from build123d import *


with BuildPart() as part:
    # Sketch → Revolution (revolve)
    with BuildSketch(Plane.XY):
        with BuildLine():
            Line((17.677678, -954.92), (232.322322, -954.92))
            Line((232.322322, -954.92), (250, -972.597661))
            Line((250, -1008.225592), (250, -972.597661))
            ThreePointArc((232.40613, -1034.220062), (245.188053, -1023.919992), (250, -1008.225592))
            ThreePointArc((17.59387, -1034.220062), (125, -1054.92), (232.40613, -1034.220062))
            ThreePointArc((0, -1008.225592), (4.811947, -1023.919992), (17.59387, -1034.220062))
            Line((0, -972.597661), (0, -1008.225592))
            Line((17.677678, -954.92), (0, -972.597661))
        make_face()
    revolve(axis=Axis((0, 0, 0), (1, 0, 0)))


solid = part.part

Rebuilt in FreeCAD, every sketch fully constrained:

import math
import FreeCAD as App
import Part
import Sketcher
from FreeCAD import Vector
Q = App.Units.Quantity

doc = App.newDocument("Part")
params = doc.addObject("Spreadsheet::Sheet", "Params")
for row, (alias, value) in enumerate([
    ("sketch1_radius", "28.000001 mm"),
    ("sketch1_radius2", "289.000001 mm"),
    ("sketch1_length", "25 mm"),
    ("revolution_angle", "360 deg"),
], start=1):
    params.set(f"A{row}", alias)
    params.set(f"B{row}", "=" + value)
    params.setAlias(f"B{row}", alias)

body = doc.addObject("PartDesign::Body", "Body")

sketch1 = body.newObject("Sketcher::SketchObject", "Sketch")
sketch1.AttachmentSupport = (doc.getObject("XY_Plane"), [""])
sketch1.MapMode = "FlatFace"
sketch1.addGeometry([
    Part.LineSegment(Vector(232, -955, 0), Vector(18, -955, 0)),
    Part.LineSegment(Vector(18, -955, 0), Vector(0, -973, 0)),
    Part.LineSegment(Vector(0, -973, 0), Vector(0, -1008, 0)),
    Part.ArcOfCircle(Part.Circle(Vector(28, -1008, 0), Vector(0, 0, 1), 28), math.radians(-180), math.radians(-112)),
    Part.ArcOfCircle(Part.Circle(Vector(125, -766, 0), Vector(0, 0, 1), 289), math.radians(-112), math.radians(-68)),
    Part.ArcOfCircle(Part.Circle(Vector(222, -1008, 0), Vector(0, 0, 1), 28), math.radians(-68), math.radians(0)),
    Part.LineSegment(Vector(250, -1008, 0), Vector(250, -973, 0)),
    Part.LineSegment(Vector(250, -973, 0), Vector(232, -955, 0)),
], False)
sketch1.addConstraint([
    Sketcher.Constraint("Coincident", 0, 2, 1, 1),
    Sketcher.Constraint("Coincident", 1, 2, 2, 1),
    Sketcher.Constraint("Tangent", 2, 2, 3, 1),
    Sketcher.Constraint("Tangent", 3, 2, 4, 1),
    Sketcher.Constraint("Tangent", 4, 2, 5, 1),
    Sketcher.Constraint("Tangent", 5, 2, 6, 1),
    Sketcher.Constraint("Coincident", 6, 2, 7, 1),
    Sketcher.Constraint("Coincident", 7, 2, 0, 1),
    Sketcher.Constraint("Horizontal", 0),
    Sketcher.Constraint("Vertical", 2),
    Sketcher.Constraint("Vertical", 6),
    Sketcher.Constraint("Equal", 3, 5),
    Sketcher.Constraint("PointOnObject", 1, 2, -2),
    Sketcher.Constraint("Perpendicular", 1, 7),
    Sketcher.Constraint("Horizontal", 3, 3, 5, 3),
    Sketcher.Constraint("Horizontal", 1, 2, 6, 2),
    Sketcher.Constraint("Equal", 1, 7),
    Sketcher.Constraint("Radius", 3, Q("28.000001 mm")),
    Sketcher.Constraint("Radius", 4, Q("289.000001 mm")),
    Sketcher.Constraint("Distance", 1, Q("25 mm")),
    Sketcher.Constraint("DistanceX", -1, 1, 4, 3, Q("125 mm")),
    Sketcher.Constraint("DistanceY", 0, 2, 4, 3, Q("189.000001 mm")),
    Sketcher.Constraint("DistanceY", 4, 3, -1, 1, Q("765.919999 mm")),
])
sketch1.setExpression("Constraints[17]", "Params.sketch1_radius")
sketch1.setExpression("Constraints[18]", "Params.sketch1_radius2")
sketch1.setExpression("Constraints[19]", "Params.sketch1_length")
revolution = body.newObject("PartDesign::Revolution", "Revolution")
revolution.Profile = sketch1
revolution.ReferenceAxis = (sketch1, ["H_Axis"])
revolution.setExpression("Angle", "Params.revolution_angle")

doc.recompute()
